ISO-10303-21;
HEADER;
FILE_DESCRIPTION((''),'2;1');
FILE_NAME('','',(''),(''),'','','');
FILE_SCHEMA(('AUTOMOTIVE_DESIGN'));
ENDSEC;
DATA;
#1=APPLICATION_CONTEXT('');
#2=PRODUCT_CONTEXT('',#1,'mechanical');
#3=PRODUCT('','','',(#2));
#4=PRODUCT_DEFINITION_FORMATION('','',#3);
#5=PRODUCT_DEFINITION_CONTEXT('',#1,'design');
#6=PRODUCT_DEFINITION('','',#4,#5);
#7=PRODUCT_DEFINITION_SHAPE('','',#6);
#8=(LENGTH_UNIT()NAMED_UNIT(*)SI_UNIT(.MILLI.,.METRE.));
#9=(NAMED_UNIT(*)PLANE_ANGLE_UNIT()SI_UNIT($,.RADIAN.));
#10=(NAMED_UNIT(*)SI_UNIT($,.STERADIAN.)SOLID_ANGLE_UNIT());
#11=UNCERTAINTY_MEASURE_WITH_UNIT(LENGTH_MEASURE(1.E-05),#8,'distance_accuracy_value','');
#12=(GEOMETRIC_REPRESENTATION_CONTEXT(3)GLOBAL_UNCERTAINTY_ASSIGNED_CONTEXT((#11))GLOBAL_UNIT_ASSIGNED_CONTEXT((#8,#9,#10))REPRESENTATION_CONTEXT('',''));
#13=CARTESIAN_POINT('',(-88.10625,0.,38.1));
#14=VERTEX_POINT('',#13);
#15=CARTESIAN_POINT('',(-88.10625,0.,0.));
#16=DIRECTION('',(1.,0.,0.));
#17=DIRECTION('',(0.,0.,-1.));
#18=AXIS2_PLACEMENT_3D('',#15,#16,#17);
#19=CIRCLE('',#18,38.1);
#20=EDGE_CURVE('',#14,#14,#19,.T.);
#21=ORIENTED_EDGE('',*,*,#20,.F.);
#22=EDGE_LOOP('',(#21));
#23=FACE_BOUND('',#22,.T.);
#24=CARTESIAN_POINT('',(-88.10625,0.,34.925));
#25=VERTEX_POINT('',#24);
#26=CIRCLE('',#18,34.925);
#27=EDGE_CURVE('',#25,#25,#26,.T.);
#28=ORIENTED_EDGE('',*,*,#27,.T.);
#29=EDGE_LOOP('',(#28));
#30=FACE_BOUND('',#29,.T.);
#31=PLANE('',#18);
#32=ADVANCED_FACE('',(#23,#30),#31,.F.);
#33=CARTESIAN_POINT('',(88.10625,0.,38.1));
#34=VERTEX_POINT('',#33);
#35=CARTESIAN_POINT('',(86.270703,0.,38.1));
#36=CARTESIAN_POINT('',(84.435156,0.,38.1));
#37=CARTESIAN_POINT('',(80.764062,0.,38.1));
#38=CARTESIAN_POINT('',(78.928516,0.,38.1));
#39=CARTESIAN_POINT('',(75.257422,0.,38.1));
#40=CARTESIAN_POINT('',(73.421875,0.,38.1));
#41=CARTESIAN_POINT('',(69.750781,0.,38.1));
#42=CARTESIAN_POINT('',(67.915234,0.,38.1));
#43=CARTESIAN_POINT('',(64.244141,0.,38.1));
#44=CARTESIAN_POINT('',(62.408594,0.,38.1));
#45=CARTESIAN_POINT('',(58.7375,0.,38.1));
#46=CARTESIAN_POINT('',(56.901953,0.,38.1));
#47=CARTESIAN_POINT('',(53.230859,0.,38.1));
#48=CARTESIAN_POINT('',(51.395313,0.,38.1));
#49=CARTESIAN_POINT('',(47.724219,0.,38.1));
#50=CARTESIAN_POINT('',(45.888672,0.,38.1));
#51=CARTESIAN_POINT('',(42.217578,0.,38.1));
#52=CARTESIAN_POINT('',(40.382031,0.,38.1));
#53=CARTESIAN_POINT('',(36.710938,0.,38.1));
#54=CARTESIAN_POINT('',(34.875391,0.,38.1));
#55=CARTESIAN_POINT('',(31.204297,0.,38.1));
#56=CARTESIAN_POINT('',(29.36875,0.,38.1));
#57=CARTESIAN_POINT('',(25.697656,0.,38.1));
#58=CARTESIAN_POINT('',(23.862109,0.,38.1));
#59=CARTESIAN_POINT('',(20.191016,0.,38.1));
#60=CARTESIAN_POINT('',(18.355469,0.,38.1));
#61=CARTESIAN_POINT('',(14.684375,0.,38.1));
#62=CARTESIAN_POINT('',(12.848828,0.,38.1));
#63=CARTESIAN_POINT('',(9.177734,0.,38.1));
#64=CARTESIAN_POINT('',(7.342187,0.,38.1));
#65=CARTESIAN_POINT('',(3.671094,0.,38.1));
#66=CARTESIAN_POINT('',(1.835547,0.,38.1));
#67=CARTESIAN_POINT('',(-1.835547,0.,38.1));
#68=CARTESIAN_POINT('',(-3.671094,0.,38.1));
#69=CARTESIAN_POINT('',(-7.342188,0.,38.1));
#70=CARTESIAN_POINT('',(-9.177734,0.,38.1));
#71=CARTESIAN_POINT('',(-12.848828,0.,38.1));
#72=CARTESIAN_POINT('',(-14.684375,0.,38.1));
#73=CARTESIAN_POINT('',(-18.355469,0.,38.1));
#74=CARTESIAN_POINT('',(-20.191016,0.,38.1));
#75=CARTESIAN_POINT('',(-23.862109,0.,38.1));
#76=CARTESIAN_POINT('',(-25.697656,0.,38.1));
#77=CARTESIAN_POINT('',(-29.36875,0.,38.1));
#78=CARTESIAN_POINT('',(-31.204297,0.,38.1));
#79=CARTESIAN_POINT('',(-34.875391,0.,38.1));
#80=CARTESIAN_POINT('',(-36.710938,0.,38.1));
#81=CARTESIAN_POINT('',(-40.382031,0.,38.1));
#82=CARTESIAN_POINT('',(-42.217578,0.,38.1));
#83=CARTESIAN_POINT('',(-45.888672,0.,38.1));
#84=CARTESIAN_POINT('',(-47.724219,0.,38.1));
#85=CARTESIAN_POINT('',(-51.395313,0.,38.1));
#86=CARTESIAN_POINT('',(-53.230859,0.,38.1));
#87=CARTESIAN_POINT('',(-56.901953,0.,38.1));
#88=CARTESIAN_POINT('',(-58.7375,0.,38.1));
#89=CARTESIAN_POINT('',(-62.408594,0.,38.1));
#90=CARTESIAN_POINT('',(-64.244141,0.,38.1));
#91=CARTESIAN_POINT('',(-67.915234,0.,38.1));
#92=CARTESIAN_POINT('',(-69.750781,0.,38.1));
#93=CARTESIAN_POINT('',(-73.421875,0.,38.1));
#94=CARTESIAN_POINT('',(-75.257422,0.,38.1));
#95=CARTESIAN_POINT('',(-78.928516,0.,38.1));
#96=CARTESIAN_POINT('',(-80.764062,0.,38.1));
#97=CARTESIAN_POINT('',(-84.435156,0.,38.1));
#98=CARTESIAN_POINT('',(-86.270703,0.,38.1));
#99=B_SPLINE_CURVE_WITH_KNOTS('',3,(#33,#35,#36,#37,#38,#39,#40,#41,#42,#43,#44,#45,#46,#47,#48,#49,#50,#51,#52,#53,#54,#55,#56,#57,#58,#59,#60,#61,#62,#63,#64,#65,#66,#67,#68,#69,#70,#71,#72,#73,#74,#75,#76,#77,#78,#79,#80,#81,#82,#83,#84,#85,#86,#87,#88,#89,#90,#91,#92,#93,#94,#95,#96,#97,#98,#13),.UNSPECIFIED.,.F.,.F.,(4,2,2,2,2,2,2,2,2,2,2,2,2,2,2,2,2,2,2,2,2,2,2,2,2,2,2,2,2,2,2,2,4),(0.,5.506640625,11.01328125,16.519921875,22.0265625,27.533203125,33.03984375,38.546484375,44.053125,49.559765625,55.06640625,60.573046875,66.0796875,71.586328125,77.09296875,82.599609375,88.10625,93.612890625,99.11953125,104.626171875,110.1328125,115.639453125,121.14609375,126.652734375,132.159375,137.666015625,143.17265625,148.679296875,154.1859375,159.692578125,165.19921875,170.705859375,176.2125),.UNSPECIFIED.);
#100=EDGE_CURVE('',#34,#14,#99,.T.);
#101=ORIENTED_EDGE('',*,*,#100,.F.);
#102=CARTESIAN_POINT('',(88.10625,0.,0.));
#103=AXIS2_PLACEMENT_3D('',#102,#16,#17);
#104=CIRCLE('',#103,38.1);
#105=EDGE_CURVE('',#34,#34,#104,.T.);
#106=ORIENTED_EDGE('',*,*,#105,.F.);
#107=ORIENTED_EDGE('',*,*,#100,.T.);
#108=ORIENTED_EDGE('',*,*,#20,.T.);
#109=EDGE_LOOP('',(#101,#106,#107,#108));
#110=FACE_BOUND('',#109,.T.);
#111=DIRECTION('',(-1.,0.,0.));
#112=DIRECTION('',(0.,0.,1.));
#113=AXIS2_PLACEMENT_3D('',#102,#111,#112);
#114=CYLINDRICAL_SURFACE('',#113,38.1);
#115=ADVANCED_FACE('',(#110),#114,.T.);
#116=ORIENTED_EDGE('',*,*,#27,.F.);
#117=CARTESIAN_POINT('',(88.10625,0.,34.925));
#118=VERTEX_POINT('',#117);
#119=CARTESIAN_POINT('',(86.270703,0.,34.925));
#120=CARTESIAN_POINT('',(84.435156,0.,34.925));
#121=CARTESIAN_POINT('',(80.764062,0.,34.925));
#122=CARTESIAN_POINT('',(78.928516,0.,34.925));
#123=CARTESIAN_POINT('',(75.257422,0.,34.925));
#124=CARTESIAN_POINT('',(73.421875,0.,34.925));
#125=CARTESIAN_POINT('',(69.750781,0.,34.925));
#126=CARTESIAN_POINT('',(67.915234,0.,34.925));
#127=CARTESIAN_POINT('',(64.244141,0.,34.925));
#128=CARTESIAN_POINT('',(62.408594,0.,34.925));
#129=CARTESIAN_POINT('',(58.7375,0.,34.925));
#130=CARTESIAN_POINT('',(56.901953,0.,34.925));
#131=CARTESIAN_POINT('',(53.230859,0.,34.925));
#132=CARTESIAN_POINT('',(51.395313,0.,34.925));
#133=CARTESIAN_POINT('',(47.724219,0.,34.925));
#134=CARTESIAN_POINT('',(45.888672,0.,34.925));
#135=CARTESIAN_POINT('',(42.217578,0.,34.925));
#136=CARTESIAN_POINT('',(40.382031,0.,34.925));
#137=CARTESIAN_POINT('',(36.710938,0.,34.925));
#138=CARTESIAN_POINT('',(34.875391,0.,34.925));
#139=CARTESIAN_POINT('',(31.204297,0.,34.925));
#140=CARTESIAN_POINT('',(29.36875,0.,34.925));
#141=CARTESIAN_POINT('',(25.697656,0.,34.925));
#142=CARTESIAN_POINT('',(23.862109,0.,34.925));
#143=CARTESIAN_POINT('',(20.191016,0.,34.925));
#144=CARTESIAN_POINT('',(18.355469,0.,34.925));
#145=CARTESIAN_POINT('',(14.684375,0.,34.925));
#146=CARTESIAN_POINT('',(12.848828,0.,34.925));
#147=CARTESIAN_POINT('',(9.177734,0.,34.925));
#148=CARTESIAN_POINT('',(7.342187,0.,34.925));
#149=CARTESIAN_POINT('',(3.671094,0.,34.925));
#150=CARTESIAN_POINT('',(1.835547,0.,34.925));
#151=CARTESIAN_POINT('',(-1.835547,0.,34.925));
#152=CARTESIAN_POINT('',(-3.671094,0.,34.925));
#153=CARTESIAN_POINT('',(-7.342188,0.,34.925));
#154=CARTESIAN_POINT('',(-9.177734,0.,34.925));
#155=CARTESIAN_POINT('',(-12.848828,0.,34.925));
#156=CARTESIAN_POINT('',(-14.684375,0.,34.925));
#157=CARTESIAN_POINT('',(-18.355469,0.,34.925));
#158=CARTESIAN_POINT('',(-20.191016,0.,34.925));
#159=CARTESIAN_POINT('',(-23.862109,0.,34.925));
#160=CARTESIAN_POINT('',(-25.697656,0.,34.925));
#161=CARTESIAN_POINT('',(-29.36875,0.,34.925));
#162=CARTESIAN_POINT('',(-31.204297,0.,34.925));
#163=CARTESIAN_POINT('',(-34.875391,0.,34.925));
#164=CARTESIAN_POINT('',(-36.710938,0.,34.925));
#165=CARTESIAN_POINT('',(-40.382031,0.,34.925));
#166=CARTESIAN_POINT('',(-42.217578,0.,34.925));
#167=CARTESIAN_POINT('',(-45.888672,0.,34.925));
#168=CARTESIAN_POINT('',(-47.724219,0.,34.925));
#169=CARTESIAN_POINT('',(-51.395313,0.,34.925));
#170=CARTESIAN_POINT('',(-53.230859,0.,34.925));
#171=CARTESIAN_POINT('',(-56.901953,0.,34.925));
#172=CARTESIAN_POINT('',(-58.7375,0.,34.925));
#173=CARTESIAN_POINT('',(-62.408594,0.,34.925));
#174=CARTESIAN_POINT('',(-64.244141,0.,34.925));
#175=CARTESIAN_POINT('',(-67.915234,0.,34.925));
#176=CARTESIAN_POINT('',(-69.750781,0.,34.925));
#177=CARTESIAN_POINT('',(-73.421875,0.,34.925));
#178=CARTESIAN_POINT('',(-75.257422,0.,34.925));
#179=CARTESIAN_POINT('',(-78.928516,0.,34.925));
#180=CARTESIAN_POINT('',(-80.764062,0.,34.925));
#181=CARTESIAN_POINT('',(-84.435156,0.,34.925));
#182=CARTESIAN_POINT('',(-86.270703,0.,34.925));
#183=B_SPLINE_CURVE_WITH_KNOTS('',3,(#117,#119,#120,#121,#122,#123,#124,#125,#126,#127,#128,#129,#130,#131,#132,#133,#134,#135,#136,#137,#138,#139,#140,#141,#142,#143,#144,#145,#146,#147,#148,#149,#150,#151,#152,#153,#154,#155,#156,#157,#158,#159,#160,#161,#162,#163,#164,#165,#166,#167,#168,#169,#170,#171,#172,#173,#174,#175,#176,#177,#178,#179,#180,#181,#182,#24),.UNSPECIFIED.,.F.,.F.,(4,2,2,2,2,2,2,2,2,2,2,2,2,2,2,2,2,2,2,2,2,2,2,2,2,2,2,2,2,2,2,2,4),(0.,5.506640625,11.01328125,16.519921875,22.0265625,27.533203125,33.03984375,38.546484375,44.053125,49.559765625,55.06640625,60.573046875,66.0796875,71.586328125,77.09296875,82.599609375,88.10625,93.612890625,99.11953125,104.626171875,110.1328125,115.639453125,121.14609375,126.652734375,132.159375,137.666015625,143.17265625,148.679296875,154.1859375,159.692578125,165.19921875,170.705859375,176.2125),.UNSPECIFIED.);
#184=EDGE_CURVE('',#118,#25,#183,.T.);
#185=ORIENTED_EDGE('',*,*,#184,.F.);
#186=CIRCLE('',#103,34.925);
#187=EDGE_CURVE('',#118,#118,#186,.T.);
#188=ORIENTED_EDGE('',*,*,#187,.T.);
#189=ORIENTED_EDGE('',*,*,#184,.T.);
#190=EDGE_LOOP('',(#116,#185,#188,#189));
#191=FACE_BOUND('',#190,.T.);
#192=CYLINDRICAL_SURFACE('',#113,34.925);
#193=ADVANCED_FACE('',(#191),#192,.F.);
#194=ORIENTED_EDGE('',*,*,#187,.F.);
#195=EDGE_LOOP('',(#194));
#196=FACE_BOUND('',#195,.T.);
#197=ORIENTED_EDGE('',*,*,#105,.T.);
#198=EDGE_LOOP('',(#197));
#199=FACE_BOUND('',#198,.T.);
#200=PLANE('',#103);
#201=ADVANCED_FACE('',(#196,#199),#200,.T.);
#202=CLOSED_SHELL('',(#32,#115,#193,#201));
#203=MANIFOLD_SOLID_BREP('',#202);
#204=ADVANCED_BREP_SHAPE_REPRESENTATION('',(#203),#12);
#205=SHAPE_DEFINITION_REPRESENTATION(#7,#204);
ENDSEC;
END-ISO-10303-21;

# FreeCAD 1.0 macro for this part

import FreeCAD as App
import Part
import Sketcher

V = App.Vector
Q = App.Units.Quantity


def faces_at(feature, points):
    """Names of the faces that lie closest to the given points."""
    faces = feature.Shape.Faces
    near = lambda p: min(range(len(faces)), key=lambda i: faces[i].distToShape(Part.Vertex(*p))[0])
    return sorted({f"Face{near(p) + 1}" for p in points})

doc = App.newDocument("Part")
params = doc.addObject("Spreadsheet::Sheet", "Params")
for row, (alias, value) in enumerate([
    ("sketch1_diameter", "3 in"),
    ("pad1_length", "6.9375 in"),
    ("thickness_wall", "0.125 in"),
], start=1):
    params.set(f"A{row}", alias)
    params.set(f"B{row}", "=" + value)
    params.setAlias(f"B{row}", alias)

body = doc.addObject("PartDesign::Body", "Body")

sketch1 = body.newObject("Sketcher::SketchObject", "Sketch")
sketch1.AttachmentSupport = (doc.getObject("YZ_Plane"), [""])
sketch1.MapMode = "FlatFace"
sketch1.addGeometry(Part.Circle(V(0, 0, 0), V(0, 0, 1), 38.1), False)
sketch1.addConstraint([
    Sketcher.Constraint("Coincident", 0, 3, -1, 1),
    Sketcher.Constraint("Diameter", 0, Q("3 in")),
])
sketch1.setExpression("Constraints[1]", "Params.sketch1_diameter")
pad1 = body.newObject("PartDesign::Pad", "Pad")
pad1.Profile = sketch1
pad1.setExpression("Length", "Params.pad1_length")
pad1.Midplane = True
doc.recompute()

thickness = body.newObject("PartDesign::Thickness", "Thickness")
thickness.Base = (pad1, faces_at(pad1, [(88.106, 0, 0), (-88.106, 0, 0)]))
thickness.setExpression("Value", "Params.thickness_wall")
thickness.Reversed = True
thickness.Join = "Intersection"

doc.recompute()
